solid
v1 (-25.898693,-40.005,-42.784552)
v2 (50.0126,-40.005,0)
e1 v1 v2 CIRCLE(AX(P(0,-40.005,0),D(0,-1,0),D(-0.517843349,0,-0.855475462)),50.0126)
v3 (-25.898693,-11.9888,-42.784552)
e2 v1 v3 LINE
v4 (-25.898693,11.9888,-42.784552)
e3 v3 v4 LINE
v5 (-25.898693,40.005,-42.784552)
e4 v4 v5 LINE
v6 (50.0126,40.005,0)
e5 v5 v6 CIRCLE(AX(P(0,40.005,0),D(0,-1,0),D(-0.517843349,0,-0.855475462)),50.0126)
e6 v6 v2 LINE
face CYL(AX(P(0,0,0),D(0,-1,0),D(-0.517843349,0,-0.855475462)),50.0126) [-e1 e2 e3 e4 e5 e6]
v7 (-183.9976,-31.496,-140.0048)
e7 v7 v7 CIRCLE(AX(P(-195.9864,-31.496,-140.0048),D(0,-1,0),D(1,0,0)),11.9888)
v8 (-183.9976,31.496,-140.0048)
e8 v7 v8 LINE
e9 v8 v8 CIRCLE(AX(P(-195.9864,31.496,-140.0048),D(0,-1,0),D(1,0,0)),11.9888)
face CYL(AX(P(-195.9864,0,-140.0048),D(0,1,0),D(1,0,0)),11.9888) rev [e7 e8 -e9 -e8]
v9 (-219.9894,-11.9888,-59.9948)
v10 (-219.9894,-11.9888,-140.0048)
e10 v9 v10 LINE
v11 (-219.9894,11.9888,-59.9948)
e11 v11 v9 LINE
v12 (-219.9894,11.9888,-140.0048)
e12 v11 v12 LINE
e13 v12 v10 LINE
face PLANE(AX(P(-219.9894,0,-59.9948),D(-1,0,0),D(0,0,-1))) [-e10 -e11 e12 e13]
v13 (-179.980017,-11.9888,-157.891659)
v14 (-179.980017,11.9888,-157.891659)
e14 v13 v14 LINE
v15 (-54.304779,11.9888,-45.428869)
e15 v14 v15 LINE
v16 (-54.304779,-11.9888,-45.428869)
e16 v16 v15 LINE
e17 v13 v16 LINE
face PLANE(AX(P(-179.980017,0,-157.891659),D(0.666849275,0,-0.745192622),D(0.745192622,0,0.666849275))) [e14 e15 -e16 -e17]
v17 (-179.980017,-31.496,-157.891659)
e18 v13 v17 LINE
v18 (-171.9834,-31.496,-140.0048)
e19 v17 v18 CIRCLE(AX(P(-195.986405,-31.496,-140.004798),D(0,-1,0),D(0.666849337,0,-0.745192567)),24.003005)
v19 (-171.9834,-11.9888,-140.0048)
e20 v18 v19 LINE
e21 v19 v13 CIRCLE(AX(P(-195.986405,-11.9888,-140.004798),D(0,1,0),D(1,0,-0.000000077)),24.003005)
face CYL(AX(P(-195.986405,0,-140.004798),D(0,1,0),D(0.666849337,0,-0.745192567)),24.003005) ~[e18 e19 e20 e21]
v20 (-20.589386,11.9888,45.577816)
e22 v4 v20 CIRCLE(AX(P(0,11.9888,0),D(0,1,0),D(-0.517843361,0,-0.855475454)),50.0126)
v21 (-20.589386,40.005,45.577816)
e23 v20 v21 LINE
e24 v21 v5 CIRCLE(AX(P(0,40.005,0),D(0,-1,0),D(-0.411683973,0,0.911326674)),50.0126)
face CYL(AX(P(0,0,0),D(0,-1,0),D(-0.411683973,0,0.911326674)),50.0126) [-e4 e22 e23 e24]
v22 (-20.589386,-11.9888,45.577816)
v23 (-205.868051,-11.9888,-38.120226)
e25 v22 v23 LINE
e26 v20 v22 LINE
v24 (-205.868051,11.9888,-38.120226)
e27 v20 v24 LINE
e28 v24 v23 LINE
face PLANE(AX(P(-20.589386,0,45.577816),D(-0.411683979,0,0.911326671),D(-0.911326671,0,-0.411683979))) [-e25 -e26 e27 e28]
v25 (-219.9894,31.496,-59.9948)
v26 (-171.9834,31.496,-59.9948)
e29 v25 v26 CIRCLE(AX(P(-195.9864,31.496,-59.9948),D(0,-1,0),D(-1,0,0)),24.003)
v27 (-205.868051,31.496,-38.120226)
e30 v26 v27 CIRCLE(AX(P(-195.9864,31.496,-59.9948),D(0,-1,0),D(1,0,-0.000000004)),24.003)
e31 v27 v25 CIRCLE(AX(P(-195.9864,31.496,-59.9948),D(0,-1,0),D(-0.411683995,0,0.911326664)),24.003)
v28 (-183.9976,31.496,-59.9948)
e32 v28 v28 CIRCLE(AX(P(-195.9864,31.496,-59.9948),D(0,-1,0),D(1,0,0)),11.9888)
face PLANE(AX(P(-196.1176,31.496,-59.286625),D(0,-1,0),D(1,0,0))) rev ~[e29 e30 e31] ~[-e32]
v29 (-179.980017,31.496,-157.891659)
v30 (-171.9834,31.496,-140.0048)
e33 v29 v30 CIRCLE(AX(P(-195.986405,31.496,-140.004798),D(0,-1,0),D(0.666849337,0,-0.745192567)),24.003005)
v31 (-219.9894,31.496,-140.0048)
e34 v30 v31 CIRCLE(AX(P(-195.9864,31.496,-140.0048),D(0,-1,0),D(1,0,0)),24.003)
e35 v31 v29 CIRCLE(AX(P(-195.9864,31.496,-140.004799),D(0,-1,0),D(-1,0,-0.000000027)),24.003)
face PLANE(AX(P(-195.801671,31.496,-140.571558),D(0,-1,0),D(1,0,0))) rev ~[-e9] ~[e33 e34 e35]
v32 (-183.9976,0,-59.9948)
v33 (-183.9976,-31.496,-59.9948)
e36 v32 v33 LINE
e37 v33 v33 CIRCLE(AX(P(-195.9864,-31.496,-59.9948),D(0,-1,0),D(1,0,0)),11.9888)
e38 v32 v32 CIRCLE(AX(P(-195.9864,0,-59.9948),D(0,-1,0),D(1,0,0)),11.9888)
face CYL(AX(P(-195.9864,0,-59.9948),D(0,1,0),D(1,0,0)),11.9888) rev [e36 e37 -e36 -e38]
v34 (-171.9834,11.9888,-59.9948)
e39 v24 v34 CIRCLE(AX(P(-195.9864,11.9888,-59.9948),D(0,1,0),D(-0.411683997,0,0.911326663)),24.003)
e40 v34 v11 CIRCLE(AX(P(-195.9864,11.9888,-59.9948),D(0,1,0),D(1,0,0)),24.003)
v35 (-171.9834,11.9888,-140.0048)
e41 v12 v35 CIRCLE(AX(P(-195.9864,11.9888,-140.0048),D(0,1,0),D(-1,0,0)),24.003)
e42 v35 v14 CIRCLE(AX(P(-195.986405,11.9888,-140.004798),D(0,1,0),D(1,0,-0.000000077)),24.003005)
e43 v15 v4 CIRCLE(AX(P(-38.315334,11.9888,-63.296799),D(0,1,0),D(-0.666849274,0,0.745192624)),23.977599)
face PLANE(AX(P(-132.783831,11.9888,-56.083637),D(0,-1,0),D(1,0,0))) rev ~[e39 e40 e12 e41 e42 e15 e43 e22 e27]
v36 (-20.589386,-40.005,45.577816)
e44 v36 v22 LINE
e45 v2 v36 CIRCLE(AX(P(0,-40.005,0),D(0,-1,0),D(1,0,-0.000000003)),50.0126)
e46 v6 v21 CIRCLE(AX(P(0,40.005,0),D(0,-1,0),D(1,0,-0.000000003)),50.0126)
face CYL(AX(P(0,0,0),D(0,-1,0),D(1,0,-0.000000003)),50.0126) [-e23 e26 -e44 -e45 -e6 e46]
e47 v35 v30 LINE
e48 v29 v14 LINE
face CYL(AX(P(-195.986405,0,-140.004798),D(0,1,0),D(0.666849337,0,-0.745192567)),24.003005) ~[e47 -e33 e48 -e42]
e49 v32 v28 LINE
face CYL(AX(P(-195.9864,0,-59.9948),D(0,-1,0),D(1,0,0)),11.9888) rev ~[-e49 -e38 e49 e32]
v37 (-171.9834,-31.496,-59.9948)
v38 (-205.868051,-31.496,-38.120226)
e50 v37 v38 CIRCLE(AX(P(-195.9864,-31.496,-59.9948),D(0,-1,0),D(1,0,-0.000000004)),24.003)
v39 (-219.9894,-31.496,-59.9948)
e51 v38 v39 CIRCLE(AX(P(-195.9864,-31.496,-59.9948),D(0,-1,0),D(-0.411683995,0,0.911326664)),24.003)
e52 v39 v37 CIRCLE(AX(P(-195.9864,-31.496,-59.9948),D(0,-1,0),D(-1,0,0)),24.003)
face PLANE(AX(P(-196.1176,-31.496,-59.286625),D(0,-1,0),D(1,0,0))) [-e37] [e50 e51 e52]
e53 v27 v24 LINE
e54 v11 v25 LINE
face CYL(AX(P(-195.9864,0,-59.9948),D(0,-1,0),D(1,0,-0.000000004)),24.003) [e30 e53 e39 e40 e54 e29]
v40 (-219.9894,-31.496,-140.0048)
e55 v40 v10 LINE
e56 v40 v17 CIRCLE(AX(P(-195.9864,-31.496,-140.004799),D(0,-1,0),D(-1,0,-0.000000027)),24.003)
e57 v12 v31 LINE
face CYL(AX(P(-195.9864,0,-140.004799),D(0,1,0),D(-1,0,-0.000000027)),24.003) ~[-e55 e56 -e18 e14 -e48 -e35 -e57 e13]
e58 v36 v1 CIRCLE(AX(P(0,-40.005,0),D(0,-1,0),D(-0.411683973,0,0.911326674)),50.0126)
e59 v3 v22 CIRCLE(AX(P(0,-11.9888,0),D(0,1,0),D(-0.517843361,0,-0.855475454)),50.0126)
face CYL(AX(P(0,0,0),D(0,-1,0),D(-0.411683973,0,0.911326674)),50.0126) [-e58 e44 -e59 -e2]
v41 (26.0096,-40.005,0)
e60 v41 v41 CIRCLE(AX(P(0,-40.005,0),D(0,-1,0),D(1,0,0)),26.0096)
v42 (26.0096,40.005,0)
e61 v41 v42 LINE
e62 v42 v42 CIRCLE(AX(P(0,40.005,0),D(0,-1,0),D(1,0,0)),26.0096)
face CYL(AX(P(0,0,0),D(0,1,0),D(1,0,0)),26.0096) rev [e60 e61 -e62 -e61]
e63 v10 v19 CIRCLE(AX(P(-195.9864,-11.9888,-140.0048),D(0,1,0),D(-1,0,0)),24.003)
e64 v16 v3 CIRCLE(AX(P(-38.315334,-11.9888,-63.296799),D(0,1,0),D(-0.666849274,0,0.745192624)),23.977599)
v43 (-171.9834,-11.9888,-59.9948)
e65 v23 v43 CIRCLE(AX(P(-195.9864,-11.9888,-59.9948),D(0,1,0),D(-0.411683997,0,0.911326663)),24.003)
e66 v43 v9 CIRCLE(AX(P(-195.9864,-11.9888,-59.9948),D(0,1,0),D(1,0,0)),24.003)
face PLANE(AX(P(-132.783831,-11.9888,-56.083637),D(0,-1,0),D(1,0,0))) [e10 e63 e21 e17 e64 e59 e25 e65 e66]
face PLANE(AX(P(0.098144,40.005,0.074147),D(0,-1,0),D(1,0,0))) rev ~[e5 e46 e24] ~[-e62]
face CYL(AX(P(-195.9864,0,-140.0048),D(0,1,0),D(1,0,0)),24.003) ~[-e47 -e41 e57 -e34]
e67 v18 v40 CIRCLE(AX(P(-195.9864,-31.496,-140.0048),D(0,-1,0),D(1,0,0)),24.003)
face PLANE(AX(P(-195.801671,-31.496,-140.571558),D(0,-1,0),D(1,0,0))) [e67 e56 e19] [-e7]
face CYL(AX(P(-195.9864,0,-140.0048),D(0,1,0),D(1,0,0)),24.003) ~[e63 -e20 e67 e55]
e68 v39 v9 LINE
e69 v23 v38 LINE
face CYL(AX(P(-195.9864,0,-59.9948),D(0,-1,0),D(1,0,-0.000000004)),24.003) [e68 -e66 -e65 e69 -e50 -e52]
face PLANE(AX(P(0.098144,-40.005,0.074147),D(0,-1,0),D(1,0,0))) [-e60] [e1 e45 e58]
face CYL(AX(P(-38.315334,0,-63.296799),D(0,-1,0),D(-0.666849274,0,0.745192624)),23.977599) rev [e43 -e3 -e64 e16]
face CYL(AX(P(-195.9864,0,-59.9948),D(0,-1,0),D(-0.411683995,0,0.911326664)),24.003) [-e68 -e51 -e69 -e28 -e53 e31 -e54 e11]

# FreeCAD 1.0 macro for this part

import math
import FreeCAD as App
import Part
import Sketcher
Q = App.Units.Quantity

doc = App.newDocument("Part")
params = doc.addObject("Spreadsheet::Sheet", "Params")
for row, (alias, value) in enumerate([
    ("sketch1_diameter", "2.048 in"),
    ("sketch1_radius", "1.969 in"),
    ("pad1_length", "3.15 in"),
    ("sketch2_diameter", "0.944 in"),
    ("sketch2_radius", "0.945 in"),
    ("pad2_length", "2.48 in"),
    ("sketch3_radius", "1.969 in"),
    ("sketch3_radius2", "0.945 in"),
    ("sketch3_radius3", "0.9450002 in"),
    ("sketch3_radius4", "0.944 in"),
    ("sketch3_height", "3.15 in"),
    ("pad3_length", "0.944 in"),
], start=1):
    params.set(f"A{row}", alias)
    params.set(f"B{row}", "=" + value)
    params.setAlias(f"B{row}", alias)

body = doc.addObject("PartDesign::Body", "Body")

# Sketch on XZ plane
sketch1 = body.newObject("Sketcher::SketchObject", "Sketch")
sketch1.AttachmentSupport = (doc.getObject("XZ_Plane"), [""])
sketch1.MapMode = "FlatFace"
sketch1.addGeometry(Part.ArcOfCircle(Part.Circle(App.Vector(0, 0, 0), App.Vector(0, 0, 1), 50), math.radians(-121), math.radians(0)), False)
sketch1.addGeometry(Part.ArcOfCircle(Part.Circle(App.Vector(0, 0, 0), App.Vector(0, 0, 1), 50), math.radians(0), math.radians(114)), False)
sketch1.addGeometry(Part.ArcOfCircle(Part.Circle(App.Vector(0, 0, 0), App.Vector(0, 0, 1), 50), math.radians(114), math.radians(239)), False)
sketch1.addGeometry(Part.Circle(App.Vector(0, 0, 0), App.Vector(0, 0, 1), 26), False)
sketch1.addConstraint(Sketcher.Constraint("Tangent", 0, 2, 1, 1))
sketch1.addConstraint(Sketcher.Constraint("Tangent", 1, 2, 2, 1))
sketch1.addConstraint(Sketcher.Constraint("Tangent", 2, 2, 0, 1))
sketch1.addConstraint(Sketcher.Constraint("Coincident", 0, 3, -1, 1))
sketch1.addConstraint(Sketcher.Constraint("Coincident", 3, 3, -1, 1))
sketch1.addConstraint(Sketcher.Constraint("PointOnObject", 0, 2, -1))
sketch1.addConstraint(Sketcher.Constraint("Diameter", 3, Q("2.048 in")))
sketch1.addConstraint(Sketcher.Constraint("Radius", 0, Q("1.969 in")))
sketch1.addConstraint(Sketcher.Constraint("DistanceY", 2, 2, -1, 1, 42.784552))
sketch1.addConstraint(Sketcher.Constraint("DistanceX", 1, 2, -1, 1, 20.589386))
sketch1.setExpression("Constraints[6]", "Params.sketch1_diameter")
sketch1.setExpression("Constraints[7]", "Params.sketch1_radius")
pad1 = body.newObject("PartDesign::Pad", "Pad")
pad1.Profile = sketch1
pad1.setExpression("Length", "Params.pad1_length")
pad1.Midplane = True
body2 = doc.addObject("PartDesign::Body", "Body001")
body2.AllowCompound = True

# Sketch on XZ plane
sketch2 = body2.newObject("Sketcher::SketchObject", "Sketch001")
sketch2.AttachmentSupport = (doc.getObject("XZ_Plane001"), [""])
sketch2.MapMode = "FlatFace"
sketch2.addGeometry(Part.ArcOfCircle(Part.Circle(App.Vector(-196, -140, 0), App.Vector(0, 0, 1), 24), math.radians(-180), math.radians(-48)), False)
sketch2.addGeometry(Part.ArcOfCircle(Part.Circle(App.Vector(-196, -140, 0), App.Vector(0, 0, 1), 24), math.radians(-48), math.radians(0)), False)
sketch2.addGeometry(Part.ArcOfCircle(Part.Circle(App.Vector(-196, -140, 0), App.Vector(0, 0, 1), 24), math.radians(0), math.radians(180)), False)
sketch2.addGeometry(Part.Circle(App.Vector(-196, -140, 0), App.Vector(0, 0, 1), 12), False)
sketch2.addGeometry(Part.ArcOfCircle(Part.Circle(App.Vector(-196, -60, 0), App.Vector(0, 0, 1), 24), math.radians(0), math.radians(114)), False)
sketch2.addGeometry(Part.ArcOfCircle(Part.Circle(App.Vector(-196, -60, 0), App.Vector(0, 0, 1), 24), math.radians(114), math.radians(180)), False)
sketch2.addGeometry(Part.ArcOfCircle(Part.Circle(App.Vector(-196, -60, 0), App.Vector(0, 0, 1), 24), math.radians(180), math.radians(360)), False)
sketch2.addGeometry(Part.Circle(App.Vector(-196, -60, 0), App.Vector(0, 0, 1), 12), False)
sketch2.addConstraint(Sketcher.Constraint("Tangent", 0, 2, 1, 1))
sketch2.addConstraint(Sketcher.Constraint("Tangent", 1, 2, 2, 1))
sketch2.addConstraint(Sketcher.Constraint("Tangent", 2, 2, 0, 1))
sketch2.addConstraint(Sketcher.Constraint("Tangent", 4, 2, 5, 1))
sketch2.addConstraint(Sketcher.Constraint("Tangent", 5, 2, 6, 1))
sketch2.addConstraint(Sketcher.Constraint("Tangent", 6, 2, 4, 1))
sketch2.addConstraint(Sketcher.Constraint("Coincident", 3, 3, 0, 3))
sketch2.addConstraint(Sketcher.Constraint("Coincident", 7, 3, 4, 3))
sketch2.addConstraint(Sketcher.Constraint("Equal", 2, 4))
sketch2.addConstraint(Sketcher.Constraint("Equal", 3, 7))
sketch2.addConstraint(Sketcher.Constraint("Horizontal", 3, 3, 1, 2))
sketch2.addConstraint(Sketcher.Constraint("Horizontal", 1, 2, 2, 2))
sketch2.addConstraint(Sketcher.Constraint("Horizontal", 7, 3, 5, 2))
sketch2.addConstraint(Sketcher.Constraint("Horizontal", 5, 2, 6, 2))
sketch2.addConstraint(Sketcher.Constraint("Vertical", 3, 3, 4, 3))
sketch2.addConstraint(Sketcher.Constraint("Diameter", 3, Q("0.944 in")))
sketch2.addConstraint(Sketcher.Constraint("Radius", 0, Q("0.945 in")))
sketch2.addConstraint(Sketcher.Constraint("DistanceY", 1, 3, 4, 3, Q("3.1499999 in")))
sketch2.addConstraint(Sketcher.Constraint("DistanceX", 0, 3, -1, 1, Q("7.716 in")))
sketch2.addConstraint(Sketcher.Constraint("DistanceY", 0, 3, -1, 1, Q("5.512 in")))
sketch2.addConstraint(Sketcher.Constraint("DistanceY", 0, 2, -1, 1, 157.891659))
sketch2.addConstraint(Sketcher.Constraint("DistanceX", 4, 2, -1, 1, 205.868051))
sketch2.setExpression("Constraints[15]", "Params.sketch2_diameter")
sketch2.setExpression("Constraints[16]", "Params.sketch2_radius")
pad2 = body2.newObject("PartDesign::Pad", "Pad001")
pad2.Profile = sketch2
pad2.setExpression("Length", "Params.pad2_length")
pad2.Midplane = True
body.AllowCompound = True
doc.recompute()

boolean = body.newObject("PartDesign::Boolean", "Boolean")
boolean.Type = "Fuse"
boolean.addObjects([body2])

# Sketch on XZ plane
sketch3 = body.newObject("Sketcher::SketchObject", "Sketch002")
sketch3.AttachmentSupport = (doc.getObject("XZ_Plane"), [""])
sketch3.MapMode = "FlatFace"
sketch3.addGeometry(Part.ArcOfCircle(Part.Circle(App.Vector(0, 0, 0), App.Vector(0, 0, 1), 50), math.radians(114), math.radians(239)), False)
sketch3.addGeometry(Part.LineSegment(App.Vector(-21, 46, 0), App.Vector(-206, -38, 0)), False)
sketch3.addGeometry(Part.ArcOfCircle(Part.Circle(App.Vector(-196, -60, 0), App.Vector(0, 0, 1), 24), math.radians(0), math.radians(114)), False)
sketch3.addGeometry(Part.ArcOfCircle(Part.Circle(App.Vector(-196, -60, 0), App.Vector(0, 0, 1), 24), math.radians(180), math.radians(360)), False)
sketch3.addGeometry(Part.LineSegment(App.Vector(-220, -60, 0), App.Vector(-220, -140, 0)), False)
sketch3.addGeometry(Part.ArcOfCircle(Part.Circle(App.Vector(-196, -140, 0), App.Vector(0, 0, 1), 24), math.radians(0), math.radians(180)), False)
sketch3.addGeometry(Part.ArcOfCircle(Part.Circle(App.Vector(-196, -140, 0), App.Vector(0, 0, 1), 24), math.radians(-48), math.radians(0)), False)
sketch3.addGeometry(Part.LineSegment(App.Vector(-180, -158, 0), App.Vector(-54, -45, 0)), False)
sketch3.addGeometry(Part.ArcOfCircle(Part.Circle(App.Vector(-38, -63, 0), App.Vector(0, 0, 1), 24), math.radians(59), math.radians(132)), False)
sketch3.addConstraint(Sketcher.Constraint("Tangent", 0, 1, 1, 1))
sketch3.addConstraint(Sketcher.Constraint("Tangent", 1, 2, 2, 2))
sketch3.addConstraint(Sketcher.Constraint("Tangent", 2, 1, 3, 2))
sketch3.addConstraint(Sketcher.Constraint("Tangent", 3, 1, 4, 1))
sketch3.addConstraint(Sketcher.Constraint("Tangent", 4, 2, 5, 2))
sketch3.addConstraint(Sketcher.Constraint("Tangent", 5, 1, 6, 2))
sketch3.addConstraint(Sketcher.Constraint("Tangent", 6, 1, 7, 1))
sketch3.addConstraint(Sketcher.Constraint("Tangent", 7, 2, 8, 2))
sketch3.addConstraint(Sketcher.Constraint("Tangent", 8, 1, 0, 2))
sketch3.addConstraint(Sketcher.Constraint("Vertical", 4))
sketch3.addConstraint(Sketcher.Constraint("Coincident", 0, 3, -1, 1))
sketch3.addConstraint(Sketcher.Constraint("Equal", 2, 3))
sketch3.addConstraint(Sketcher.Constraint("Equal", 3, 5))
sketch3.addConstraint(Sketcher.Constraint("Horizontal", 3, 3, 2, 1))
sketch3.addConstraint(Sketcher.Constraint("Horizontal", 4, 2, 5, 1))
sketch3.addConstraint(Sketcher.Constraint("Radius", 0, Q("1.969 in")))
sketch3.addConstraint(Sketcher.Constraint("Radius", 2, Q("0.945 in")))
sketch3.addConstraint(Sketcher.Constraint("Radius", 6, Q("0.9450002 in")))
sketch3.addConstraint(Sketcher.Constraint("Radius", 8, Q("0.944 in")))
sketch3.addConstraint(Sketcher.Constraint("DistanceY", 4, 2, 4, 1, Q("3.15 in")))
sketch3.addConstraint(Sketcher.Constraint("DistanceY", 8, 3, 3, 3, Q("0.13 in")))
sketch3.addConstraint(Sketcher.Constraint("DistanceX", 2, 3, -1, 1, Q("7.716 in")))
sketch3.addConstraint(Sketcher.Constraint("DistanceY", 2, 3, -1, 1, Q("2.362 in")))
sketch3.setExpression("Constraints[15]", "Params.sketch3_radius")
sketch3.setExpression("Constraints[16]", "Params.sketch3_radius2")
sketch3.setExpression("Constraints[17]", "Params.sketch3_radius3")
sketch3.setExpression("Constraints[18]", "Params.sketch3_radius4")
sketch3.setExpression("Constraints[19]", "Params.sketch3_height")
pad3 = body.newObject("PartDesign::Pad", "Pad002")
pad3.Profile = sketch3
pad3.setExpression("Length", "Params.pad3_length")
pad3.Midplane = True

doc.recompute()
